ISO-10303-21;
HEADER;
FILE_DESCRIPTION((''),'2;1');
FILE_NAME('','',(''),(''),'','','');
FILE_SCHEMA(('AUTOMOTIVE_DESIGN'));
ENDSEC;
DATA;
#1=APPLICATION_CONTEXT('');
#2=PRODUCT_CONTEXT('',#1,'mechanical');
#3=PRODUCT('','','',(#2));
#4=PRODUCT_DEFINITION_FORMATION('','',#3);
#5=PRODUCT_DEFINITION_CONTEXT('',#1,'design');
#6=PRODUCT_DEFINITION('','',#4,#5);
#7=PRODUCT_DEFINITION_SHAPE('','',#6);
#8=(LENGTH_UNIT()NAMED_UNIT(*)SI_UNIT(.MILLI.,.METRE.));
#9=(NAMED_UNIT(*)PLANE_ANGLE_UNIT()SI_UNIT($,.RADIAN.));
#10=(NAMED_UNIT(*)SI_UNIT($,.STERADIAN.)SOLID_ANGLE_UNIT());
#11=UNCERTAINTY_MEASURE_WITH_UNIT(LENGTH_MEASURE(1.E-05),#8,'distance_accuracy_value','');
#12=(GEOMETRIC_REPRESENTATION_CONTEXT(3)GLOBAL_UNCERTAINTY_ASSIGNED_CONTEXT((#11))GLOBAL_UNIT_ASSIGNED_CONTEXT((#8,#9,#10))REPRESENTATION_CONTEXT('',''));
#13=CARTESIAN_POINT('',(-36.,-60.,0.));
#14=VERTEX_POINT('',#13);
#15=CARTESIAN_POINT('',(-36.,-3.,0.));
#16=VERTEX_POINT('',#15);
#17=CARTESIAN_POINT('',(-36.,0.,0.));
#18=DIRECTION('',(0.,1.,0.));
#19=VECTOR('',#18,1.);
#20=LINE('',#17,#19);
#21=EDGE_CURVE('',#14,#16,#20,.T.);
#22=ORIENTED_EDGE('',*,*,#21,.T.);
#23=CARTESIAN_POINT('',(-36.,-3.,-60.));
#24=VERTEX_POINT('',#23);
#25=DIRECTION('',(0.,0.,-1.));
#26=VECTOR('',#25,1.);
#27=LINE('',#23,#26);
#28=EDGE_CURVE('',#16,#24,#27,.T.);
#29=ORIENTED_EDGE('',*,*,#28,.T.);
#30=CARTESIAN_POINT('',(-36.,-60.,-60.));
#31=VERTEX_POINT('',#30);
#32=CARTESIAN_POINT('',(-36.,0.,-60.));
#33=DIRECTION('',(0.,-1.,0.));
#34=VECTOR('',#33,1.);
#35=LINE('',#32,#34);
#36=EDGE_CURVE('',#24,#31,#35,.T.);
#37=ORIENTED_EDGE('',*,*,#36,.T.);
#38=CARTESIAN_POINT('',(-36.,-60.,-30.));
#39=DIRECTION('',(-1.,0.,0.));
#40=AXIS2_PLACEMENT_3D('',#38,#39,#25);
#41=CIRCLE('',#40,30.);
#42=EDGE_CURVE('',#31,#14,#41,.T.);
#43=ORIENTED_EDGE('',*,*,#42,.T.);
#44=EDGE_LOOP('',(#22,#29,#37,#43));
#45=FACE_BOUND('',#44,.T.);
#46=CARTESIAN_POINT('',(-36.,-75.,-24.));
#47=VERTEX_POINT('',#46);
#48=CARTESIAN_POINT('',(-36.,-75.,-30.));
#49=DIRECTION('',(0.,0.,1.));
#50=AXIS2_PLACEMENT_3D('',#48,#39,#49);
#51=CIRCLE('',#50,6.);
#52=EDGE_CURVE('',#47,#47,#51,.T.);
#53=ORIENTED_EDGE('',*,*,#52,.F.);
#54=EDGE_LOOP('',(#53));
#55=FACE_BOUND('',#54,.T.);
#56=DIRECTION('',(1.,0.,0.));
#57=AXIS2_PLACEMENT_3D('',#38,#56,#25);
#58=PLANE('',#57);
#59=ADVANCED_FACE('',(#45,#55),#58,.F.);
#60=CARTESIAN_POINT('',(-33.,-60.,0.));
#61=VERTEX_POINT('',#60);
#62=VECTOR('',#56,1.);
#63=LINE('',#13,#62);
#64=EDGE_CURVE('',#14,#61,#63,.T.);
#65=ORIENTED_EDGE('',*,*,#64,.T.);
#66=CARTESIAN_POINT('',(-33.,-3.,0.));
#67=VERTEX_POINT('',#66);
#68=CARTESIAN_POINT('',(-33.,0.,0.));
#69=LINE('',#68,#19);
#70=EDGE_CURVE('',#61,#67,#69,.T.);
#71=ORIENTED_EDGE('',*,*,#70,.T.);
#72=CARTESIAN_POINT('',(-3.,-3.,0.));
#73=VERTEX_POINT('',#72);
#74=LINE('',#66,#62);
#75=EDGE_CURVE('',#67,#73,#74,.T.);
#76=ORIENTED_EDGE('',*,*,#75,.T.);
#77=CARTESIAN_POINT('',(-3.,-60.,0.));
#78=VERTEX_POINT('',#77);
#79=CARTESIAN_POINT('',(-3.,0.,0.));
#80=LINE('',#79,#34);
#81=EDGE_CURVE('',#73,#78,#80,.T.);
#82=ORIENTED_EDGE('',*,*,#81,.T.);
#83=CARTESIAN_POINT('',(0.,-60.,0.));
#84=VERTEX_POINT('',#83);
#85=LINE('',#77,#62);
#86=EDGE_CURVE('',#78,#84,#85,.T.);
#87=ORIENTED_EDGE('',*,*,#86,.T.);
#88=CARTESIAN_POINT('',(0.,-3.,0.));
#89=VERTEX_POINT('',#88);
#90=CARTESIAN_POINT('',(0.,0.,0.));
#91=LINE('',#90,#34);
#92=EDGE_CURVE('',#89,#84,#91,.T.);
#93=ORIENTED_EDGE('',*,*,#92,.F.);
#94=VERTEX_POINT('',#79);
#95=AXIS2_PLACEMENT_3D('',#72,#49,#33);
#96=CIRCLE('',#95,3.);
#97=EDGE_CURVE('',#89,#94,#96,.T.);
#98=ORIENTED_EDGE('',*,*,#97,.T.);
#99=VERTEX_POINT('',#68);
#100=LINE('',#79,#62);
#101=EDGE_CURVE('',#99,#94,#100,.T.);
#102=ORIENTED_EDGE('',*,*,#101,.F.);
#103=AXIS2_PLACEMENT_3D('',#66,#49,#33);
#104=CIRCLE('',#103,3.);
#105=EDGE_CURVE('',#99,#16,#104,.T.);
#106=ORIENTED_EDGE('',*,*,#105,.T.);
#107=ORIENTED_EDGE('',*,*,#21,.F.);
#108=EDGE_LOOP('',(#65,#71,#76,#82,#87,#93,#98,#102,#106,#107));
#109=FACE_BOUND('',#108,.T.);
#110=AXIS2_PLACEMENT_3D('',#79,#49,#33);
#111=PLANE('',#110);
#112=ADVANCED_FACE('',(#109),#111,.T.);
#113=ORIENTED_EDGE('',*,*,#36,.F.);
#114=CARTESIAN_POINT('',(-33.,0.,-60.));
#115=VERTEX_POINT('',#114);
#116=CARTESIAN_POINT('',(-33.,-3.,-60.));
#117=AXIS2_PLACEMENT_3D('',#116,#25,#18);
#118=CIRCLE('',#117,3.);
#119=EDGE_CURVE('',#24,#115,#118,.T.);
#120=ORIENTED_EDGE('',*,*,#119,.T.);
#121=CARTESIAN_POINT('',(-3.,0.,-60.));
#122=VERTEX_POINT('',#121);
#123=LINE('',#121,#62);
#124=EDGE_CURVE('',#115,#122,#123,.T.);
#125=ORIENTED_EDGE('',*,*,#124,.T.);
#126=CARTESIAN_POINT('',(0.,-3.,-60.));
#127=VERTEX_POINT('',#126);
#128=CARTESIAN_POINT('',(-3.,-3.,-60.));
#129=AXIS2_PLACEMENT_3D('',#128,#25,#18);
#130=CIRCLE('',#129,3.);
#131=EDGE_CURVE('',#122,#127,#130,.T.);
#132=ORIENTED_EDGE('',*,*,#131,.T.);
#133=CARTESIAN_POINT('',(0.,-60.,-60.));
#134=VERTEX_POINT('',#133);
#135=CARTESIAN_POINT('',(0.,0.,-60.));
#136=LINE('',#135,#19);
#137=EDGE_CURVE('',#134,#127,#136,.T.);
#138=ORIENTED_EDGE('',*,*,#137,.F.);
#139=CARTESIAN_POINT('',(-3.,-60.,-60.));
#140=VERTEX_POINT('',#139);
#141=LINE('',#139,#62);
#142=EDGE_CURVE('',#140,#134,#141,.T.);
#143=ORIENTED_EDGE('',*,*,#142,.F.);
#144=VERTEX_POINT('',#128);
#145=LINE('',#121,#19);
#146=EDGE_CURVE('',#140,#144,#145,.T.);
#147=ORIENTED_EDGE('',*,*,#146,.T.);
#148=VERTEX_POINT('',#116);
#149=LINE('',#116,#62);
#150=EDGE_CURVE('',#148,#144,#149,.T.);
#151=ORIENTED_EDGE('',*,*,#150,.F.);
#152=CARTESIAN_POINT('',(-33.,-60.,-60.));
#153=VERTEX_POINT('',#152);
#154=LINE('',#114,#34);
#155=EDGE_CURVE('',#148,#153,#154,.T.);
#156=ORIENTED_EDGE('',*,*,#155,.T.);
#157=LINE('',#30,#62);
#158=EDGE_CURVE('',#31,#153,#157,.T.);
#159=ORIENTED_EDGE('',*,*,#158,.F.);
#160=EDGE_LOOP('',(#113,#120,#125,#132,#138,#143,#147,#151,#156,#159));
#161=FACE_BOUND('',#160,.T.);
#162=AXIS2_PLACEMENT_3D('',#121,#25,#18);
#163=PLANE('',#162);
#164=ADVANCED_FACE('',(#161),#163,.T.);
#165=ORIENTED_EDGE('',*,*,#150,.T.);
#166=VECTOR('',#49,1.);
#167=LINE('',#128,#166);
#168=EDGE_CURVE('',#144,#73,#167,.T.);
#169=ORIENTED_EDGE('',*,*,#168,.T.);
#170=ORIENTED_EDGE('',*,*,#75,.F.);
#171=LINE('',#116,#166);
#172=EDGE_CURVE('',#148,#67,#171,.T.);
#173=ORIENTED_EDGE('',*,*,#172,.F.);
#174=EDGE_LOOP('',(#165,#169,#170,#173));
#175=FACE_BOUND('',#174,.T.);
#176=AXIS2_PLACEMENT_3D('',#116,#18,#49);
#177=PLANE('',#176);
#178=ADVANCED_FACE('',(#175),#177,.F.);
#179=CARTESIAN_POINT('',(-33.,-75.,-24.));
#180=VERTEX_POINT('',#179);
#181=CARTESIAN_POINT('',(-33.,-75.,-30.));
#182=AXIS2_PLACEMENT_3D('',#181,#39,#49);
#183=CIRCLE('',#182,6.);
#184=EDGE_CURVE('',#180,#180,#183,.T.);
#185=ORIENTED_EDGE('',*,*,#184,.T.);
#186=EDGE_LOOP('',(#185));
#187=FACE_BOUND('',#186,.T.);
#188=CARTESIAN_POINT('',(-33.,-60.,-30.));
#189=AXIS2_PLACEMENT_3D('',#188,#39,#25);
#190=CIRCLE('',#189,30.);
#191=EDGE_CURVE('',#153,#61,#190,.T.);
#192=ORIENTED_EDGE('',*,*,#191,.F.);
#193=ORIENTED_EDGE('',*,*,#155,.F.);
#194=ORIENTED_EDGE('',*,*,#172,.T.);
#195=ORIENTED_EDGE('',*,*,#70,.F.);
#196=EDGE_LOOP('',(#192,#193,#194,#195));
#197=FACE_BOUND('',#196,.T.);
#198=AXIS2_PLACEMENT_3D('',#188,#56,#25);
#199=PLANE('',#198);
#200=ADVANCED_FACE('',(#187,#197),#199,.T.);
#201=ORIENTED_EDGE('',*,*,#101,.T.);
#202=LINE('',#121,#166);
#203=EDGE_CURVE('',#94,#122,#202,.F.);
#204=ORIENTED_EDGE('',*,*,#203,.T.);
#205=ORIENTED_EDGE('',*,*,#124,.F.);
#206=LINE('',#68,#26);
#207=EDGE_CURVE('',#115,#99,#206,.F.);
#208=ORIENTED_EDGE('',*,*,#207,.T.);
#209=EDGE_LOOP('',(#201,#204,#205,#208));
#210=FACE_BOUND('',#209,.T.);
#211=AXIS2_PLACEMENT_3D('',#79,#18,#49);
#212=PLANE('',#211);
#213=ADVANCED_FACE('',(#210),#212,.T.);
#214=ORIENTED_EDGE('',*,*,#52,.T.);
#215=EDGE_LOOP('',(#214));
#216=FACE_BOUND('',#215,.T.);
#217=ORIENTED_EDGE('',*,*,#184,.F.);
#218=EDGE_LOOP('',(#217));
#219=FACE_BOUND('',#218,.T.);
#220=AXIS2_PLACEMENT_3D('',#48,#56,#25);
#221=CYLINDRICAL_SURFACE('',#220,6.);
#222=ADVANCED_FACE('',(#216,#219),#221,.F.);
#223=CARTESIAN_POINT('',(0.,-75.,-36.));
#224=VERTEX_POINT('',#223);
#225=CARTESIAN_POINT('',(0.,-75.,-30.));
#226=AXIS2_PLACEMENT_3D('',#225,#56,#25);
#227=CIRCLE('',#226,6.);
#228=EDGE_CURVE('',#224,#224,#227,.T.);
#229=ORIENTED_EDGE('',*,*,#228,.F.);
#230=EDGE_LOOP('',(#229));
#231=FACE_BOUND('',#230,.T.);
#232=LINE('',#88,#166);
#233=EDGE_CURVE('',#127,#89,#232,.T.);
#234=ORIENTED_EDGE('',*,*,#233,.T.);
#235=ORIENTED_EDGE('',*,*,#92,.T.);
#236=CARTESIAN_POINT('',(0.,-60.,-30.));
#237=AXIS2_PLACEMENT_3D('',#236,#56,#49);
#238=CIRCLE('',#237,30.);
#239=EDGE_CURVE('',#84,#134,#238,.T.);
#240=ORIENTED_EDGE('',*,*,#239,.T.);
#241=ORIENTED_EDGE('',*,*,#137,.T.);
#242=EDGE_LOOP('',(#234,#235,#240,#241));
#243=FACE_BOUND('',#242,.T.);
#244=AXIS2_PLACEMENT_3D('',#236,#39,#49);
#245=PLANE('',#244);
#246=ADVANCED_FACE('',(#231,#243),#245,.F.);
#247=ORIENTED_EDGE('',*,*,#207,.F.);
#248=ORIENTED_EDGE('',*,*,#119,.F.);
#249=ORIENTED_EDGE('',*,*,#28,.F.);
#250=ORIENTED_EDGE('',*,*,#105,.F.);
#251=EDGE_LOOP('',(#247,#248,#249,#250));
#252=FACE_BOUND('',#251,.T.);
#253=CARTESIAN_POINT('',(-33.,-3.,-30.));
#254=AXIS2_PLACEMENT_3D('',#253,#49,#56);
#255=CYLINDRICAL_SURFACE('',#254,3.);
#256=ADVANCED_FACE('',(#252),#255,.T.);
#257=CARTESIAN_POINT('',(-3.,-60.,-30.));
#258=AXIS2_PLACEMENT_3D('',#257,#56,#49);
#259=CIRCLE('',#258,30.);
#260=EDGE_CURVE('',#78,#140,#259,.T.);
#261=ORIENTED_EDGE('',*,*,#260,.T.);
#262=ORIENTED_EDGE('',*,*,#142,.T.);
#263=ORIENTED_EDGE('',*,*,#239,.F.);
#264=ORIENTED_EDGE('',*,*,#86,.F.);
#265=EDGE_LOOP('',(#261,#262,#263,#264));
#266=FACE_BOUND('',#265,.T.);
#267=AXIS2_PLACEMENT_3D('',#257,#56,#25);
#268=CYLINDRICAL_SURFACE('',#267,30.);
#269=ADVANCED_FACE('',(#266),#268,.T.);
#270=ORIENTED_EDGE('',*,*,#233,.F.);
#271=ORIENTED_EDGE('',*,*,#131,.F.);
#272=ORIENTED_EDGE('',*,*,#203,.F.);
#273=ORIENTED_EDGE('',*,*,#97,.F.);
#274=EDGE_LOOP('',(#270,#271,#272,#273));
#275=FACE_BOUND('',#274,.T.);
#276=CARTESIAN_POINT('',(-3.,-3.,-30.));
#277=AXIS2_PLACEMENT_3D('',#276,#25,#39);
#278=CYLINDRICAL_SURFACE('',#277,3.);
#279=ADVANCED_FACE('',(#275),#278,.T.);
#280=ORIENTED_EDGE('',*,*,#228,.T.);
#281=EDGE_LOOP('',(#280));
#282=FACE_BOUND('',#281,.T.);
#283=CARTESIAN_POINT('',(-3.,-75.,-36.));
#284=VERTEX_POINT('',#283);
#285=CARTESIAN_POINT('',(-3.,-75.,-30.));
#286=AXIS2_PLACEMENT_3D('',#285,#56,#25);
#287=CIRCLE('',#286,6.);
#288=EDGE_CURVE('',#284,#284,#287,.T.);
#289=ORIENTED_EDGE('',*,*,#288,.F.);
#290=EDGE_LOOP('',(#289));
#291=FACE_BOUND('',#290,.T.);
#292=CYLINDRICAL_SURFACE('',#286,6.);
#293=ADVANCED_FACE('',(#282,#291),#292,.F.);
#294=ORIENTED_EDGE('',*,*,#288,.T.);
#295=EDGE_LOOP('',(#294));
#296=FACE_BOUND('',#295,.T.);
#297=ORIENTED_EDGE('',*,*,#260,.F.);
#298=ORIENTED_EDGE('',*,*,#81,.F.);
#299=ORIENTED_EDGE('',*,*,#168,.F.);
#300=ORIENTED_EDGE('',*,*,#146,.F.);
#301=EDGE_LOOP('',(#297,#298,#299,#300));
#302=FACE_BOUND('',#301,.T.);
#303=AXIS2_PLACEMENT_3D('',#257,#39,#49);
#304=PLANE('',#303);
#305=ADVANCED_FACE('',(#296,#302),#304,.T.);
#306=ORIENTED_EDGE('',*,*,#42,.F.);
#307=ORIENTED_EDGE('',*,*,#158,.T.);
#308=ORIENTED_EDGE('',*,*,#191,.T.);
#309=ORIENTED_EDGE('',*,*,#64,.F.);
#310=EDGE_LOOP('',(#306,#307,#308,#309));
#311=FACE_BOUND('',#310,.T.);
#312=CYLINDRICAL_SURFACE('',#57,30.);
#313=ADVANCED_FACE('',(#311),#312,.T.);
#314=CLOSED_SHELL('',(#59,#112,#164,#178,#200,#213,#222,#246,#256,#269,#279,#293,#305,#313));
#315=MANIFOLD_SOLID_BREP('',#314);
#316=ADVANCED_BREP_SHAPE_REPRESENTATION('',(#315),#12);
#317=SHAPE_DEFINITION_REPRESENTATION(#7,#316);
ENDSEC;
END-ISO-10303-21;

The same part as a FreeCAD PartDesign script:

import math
import FreeCAD as App
import Part
import Sketcher


def edges_at(feature, points):
    """Names of the edges that pass closest to the given points."""
    edges = feature.Shape.Edges
    near = lambda p: min(range(len(edges)), key=lambda i: edges[i].distToShape(Part.Vertex(*p))[0])
    return sorted({f"Edge{near(p) + 1}" for p in points})


def add_polygon(sketch, points):
    """Adds a closed chain of lines whose ends are joined by coincident constraints."""
    first, n = sketch.GeometryCount, len(points)
    for a, b in zip(points, points[1:] + points[:1]):
        sketch.addGeometry(Part.LineSegment(App.Vector(*a, 0), App.Vector(*b, 0)), False)
    for i in range(n):
        sketch.addConstraint(Sketcher.Constraint("Coincident", first + i, 2, first + (i + 1) % n, 1))

doc = App.newDocument("Part")
body = doc.addObject("PartDesign::Body", "Body")

sketch1 = body.newObject("Sketcher::SketchObject", "Sketch")
sketch1.AttachmentSupport = (doc.getObject("YZ_Plane"), [""])
sketch1.MapMode = "FlatFace"
sketch1.addGeometry([
    Part.LineSegment(App.Vector(0, -60, 0), App.Vector(0, 0, 0)),
    Part.LineSegment(App.Vector(0, 0, 0), App.Vector(-60, 0, 0)),
    Part.ArcOfCircle(Part.Circle(App.Vector(-60, -30, 0), App.Vector(0, 0, 1), 30), math.radians(90), math.radians(270)),
    Part.LineSegment(App.Vector(-60, -60, 0), App.Vector(0, -60, 0)),
    Part.Circle(App.Vector(-75, -30, 0), App.Vector(0, 0, 1), 6),
], False)
sketch1.addConstraint([
    Sketcher.Constraint("Coincident", 0, 2, 1, 1),
    Sketcher.Constraint("Tangent", 1, 2, 2, 1),
    Sketcher.Constraint("Tangent", 2, 2, 3, 1),
    Sketcher.Constraint("Coincident", 3, 2, 0, 1),
    Sketcher.Constraint("Vertical", 0),
    Sketcher.Constraint("Horizontal", 1),
    Sketcher.Constraint("Horizontal", 3),
    Sketcher.Constraint("Coincident", 0, 2, -1, 1),
    Sketcher.Constraint("Horizontal", 2, 3, 4, 3),
    Sketcher.Constraint("Equal", 3, 0),
    Sketcher.Constraint("Diameter", 4, 12.0),
    Sketcher.Constraint("Radius", 2, 30.0),
    Sketcher.Constraint("DistanceX", 4, 3, -1, 1, 75.0),
])
pad1 = body.newObject("PartDesign::Pad", "Pad")
pad1.Profile = sketch1
pad1.Length = 3
pad1.Reversed = True

sketch2 = body.newObject("Sketcher::SketchObject", "Sketch001")
sketch2.AttachmentSupport = (doc.getObject("YZ_Plane"), [""])
sketch2.MapMode = "FlatFace"
sketch2.AttachmentOffset = App.Placement(App.Vector(0, 0, -3), App.Rotation())
add_polygon(sketch2, [(0, -60), (-3, -60), (-3, 0), (0, 0)])
sketch2.addConstraint([
    Sketcher.Constraint("Horizontal", 0),
    Sketcher.Constraint("Vertical", 1),
    Sketcher.Constraint("Horizontal", 2),
    Sketcher.Constraint("Vertical", 3),
    Sketcher.Constraint("Coincident", 2, 2, -1, 1),
    Sketcher.Constraint("DistanceX", 0, 2, 0, 1, 3.0),
    Sketcher.Constraint("DistanceY", 1, 1, 1, 2, 60.0),
])
pad2 = body.newObject("PartDesign::Pad", "Pad001")
pad2.Profile = sketch2
pad2.Length = 30
pad2.Reversed = True

sketch3 = body.newObject("Sketcher::SketchObject", "Sketch002")
sketch3.AttachmentSupport = (doc.getObject("YZ_Plane"), [""])
sketch3.MapMode = "FlatFace"
sketch3.AttachmentOffset = App.Placement(App.Vector(0, 0, -33), App.Rotation())
sketch3.addGeometry([
    Part.LineSegment(App.Vector(0, 0, 0), App.Vector(0, -60, 0)),
    Part.LineSegment(App.Vector(0, -60, 0), App.Vector(-60, -60, 0)),
    Part.ArcOfCircle(Part.Circle(App.Vector(-60, -30, 0), App.Vector(0, 0, 1), 30), math.radians(90), math.radians(270)),
    Part.LineSegment(App.Vector(-60, 0, 0), App.Vector(0, 0, 0)),
    Part.Circle(App.Vector(-75, -30, 0), App.Vector(0, 0, 1), 6),
], False)
sketch3.addConstraint([
    Sketcher.Constraint("Coincident", 0, 2, 1, 1),
    Sketcher.Constraint("Tangent", 1, 2, 2, 2),
    Sketcher.Constraint("Tangent", 2, 1, 3, 1),
    Sketcher.Constraint("Coincident", 3, 2, 0, 1),
    Sketcher.Constraint("Vertical", 0),
    Sketcher.Constraint("Horizontal", 1),
    Sketcher.Constraint("Horizontal", 3),
    Sketcher.Constraint("Coincident", 3, 2, -1, 1),
    Sketcher.Constraint("Horizontal", 2, 3, 4, 3),
    Sketcher.Constraint("Equal", 3, 0),
    Sketcher.Constraint("Diameter", 4, 12.0),
    Sketcher.Constraint("Radius", 2, 30.0),
    Sketcher.Constraint("DistanceX", 4, 3, -1, 1, 75.0),
])
pad3 = body.newObject("PartDesign::Pad", "Pad002")
pad3.Profile = sketch3
pad3.Length = 3
pad3.Reversed = True
doc.recompute()

fillet = body.newObject("PartDesign::Fillet", "Fillet")
fillet.Base = (pad3, edges_at(pad3, [(-36, 0, -30), (0, 0, -30)]))
fillet.Radius = 3

doc.recompute()
